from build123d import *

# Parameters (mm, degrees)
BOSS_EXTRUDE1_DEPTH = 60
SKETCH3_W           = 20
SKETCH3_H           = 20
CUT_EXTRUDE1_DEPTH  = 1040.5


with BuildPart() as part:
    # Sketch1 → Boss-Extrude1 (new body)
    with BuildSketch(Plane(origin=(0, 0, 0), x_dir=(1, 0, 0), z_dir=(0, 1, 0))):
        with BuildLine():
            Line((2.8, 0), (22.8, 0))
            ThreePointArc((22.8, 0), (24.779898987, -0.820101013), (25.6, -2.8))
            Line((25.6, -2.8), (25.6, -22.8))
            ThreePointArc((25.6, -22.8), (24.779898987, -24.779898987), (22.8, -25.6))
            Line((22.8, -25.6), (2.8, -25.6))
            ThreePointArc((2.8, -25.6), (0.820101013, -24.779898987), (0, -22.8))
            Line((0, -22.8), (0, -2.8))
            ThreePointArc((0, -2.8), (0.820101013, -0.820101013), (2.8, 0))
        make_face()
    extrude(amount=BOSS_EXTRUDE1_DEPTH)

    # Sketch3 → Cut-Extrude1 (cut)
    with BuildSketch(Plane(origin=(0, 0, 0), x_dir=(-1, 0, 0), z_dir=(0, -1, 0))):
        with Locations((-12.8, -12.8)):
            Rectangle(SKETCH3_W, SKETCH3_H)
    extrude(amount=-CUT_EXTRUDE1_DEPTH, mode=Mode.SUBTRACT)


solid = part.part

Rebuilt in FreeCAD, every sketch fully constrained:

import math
import FreeCAD as App
import Part
import Sketcher

V = App.Vector

doc = App.newDocument("Part")
params = doc.addObject("Spreadsheet::Sheet", "Params")
for row, (alias, value) in enumerate([
    ("sketch1_radius", "2.8 mm"),
    ("sketch1_width", "20 mm"),
    ("pad1_length", "60 mm"),
    ("sketch2_width", "20 mm"),
    ("pocket1_length", "1040.5 mm"),
], start=1):
    params.set(f"A{row}", alias)
    params.set(f"B{row}", "=" + value)
    params.setAlias(f"B{row}", alias)

body = doc.addObject("PartDesign::Body", "Body")

# Sketch on XZ plane
sketch1 = doc.addObject("Sketcher::SketchObject", "Sketch")
body.addObject(sketch1)
sketch1.AttachmentSupport = (doc.XZ_Plane, [""])
sketch1.MapMode = "FlatFace"
sketch1.addGeometry(Part.LineSegment(V(22.8, 0, 0), V(2.8, 0, 0)), False)
sketch1.addGeometry(Part.ArcOfCircle(Part.Circle(V(2.8, 2.8, 0), V(0, 0, 1), 2.8), math.radians(-180), math.radians(-90)), False)
sketch1.addGeometry(Part.LineSegment(V(0, 2.8, 0), V(0, 22.8, 0)), False)
sketch1.addGeometry(Part.ArcOfCircle(Part.Circle(V(2.8, 22.8, 0), V(0, 0, 1), 2.8), math.radians(90), math.radians(180)), False)
sketch1.addGeometry(Part.LineSegment(V(2.8, 25.6, 0), V(22.8, 25.6, 0)), False)
sketch1.addGeometry(Part.ArcOfCircle(Part.Circle(V(22.8, 22.8, 0), V(0, 0, 1), 2.8), math.radians(0), math.radians(90)), False)
sketch1.addGeometry(Part.LineSegment(V(25.6, 22.8, 0), V(25.6, 2.8, 0)), False)
sketch1.addGeometry(Part.ArcOfCircle(Part.Circle(V(22.8, 2.8, 0), V(0, 0, 1), 2.8), math.radians(-90), math.radians(0)), False)
sketch1.addConstraint(Sketcher.Constraint("Tangent", 0, 2, 1, 2))
sketch1.addConstraint(Sketcher.Constraint("Tangent", 1, 1, 2, 1))
sketch1.addConstraint(Sketcher.Constraint("Tangent", 2, 2, 3, 2))
sketch1.addConstraint(Sketcher.Constraint("Tangent", 3, 1, 4, 1))
sketch1.addConstraint(Sketcher.Constraint("Tangent", 4, 2, 5, 2))
sketch1.addConstraint(Sketcher.Constraint("Tangent", 5, 1, 6, 1))
sketch1.addConstraint(Sketcher.Constraint("Tangent", 6, 2, 7, 2))
sketch1.addConstraint(Sketcher.Constraint("Tangent", 7, 1, 0, 1))
sketch1.addConstraint(Sketcher.Constraint("Horizontal", 0))
sketch1.addConstraint(Sketcher.Constraint("Vertical", 2))
sketch1.addConstraint(Sketcher.Constraint("Horizontal", 4))
sketch1.addConstraint(Sketcher.Constraint("Vertical", 6))
sketch1.addConstraint(Sketcher.Constraint("Equal", 1, 3))
sketch1.addConstraint(Sketcher.Constraint("Equal", 3, 5))
sketch1.addConstraint(Sketcher.Constraint("Equal", 5, 7))
sketch1.addConstraint(Sketcher.Constraint("PointOnObject", 0, 2, -1))
sketch1.addConstraint(Sketcher.Constraint("PointOnObject", 1, 1, -2))
sketch1.addConstraint(Sketcher.Constraint("Equal", 4, 2))
sketch1.addConstraint(Sketcher.Constraint("Radius", 1, 2.8))
sketch1.addConstraint(Sketcher.Constraint("DistanceX", 0, 2, 0, 1, 20.0))
sketch1.setExpression("Constraints[18]", "Params.sketch1_radius")
sketch1.setExpression("Constraints[19]", "Params.sketch1_width")
pad1 = doc.addObject("PartDesign::Pad", "Pad")
body.addObject(pad1)
pad1.Profile = sketch1
pad1.setExpression("Length", "Params.pad1_length")
pad1.Reversed = True

# Sketch on XZ plane
sketch2 = doc.addObject("Sketcher::SketchObject", "Sketch001")
body.addObject(sketch2)
sketch2.AttachmentSupport = (doc.XZ_Plane, [""])
sketch2.MapMode = "FlatFace"
sketch2.addGeometry(Part.LineSegment(V(23, 3, 0), V(23, 23, 0)), False)
sketch2.addGeometry(Part.LineSegment(V(23, 23, 0), V(3, 23, 0)), False)
sketch2.addGeometry(Part.LineSegment(V(3, 23, 0), V(3, 3, 0)), False)
sketch2.addGeometry(Part.LineSegment(V(3, 3, 0), V(23, 3, 0)), False)
sketch2.addConstraint(Sketcher.Constraint("Coincident", 0, 2, 1, 1))
sketch2.addConstraint(Sketcher.Constraint("Coincident", 1, 2, 2, 1))
sketch2.addConstraint(Sketcher.Constraint("Coincident", 2, 2, 3, 1))
sketch2.addConstraint(Sketcher.Constraint("Coincident", 3, 2, 0, 1))
sketch2.addConstraint(Sketcher.Constraint("Vertical", 0))
sketch2.addConstraint(Sketcher.Constraint("Horizontal", 1))
sketch2.addConstraint(Sketcher.Constraint("Vertical", 2))
sketch2.addConstraint(Sketcher.Constraint("Horizontal", 3))
sketch2.addConstraint(Sketcher.Constraint("Equal", 3, 0))
sketch2.addConstraint(Sketcher.Constraint("DistanceX", 1, 2, 1, 1, 20.0))
sketch2.addConstraint(Sketcher.Constraint("DistanceX", -1, 1, 0, 2, 22.8))
sketch2.addConstraint(Sketcher.Constraint("DistanceY", -1, 1, 0, 2, 22.8))
sketch2.setExpression("Constraints[9]", "Params.sketch2_width")
pocket1 = doc.addObject("PartDesign::Pocket", "Pocket")
body.addObject(pocket1)
pocket1.Profile = sketch2
pocket1.setExpression("Length", "Params.pocket1_length")

doc.recompute()
